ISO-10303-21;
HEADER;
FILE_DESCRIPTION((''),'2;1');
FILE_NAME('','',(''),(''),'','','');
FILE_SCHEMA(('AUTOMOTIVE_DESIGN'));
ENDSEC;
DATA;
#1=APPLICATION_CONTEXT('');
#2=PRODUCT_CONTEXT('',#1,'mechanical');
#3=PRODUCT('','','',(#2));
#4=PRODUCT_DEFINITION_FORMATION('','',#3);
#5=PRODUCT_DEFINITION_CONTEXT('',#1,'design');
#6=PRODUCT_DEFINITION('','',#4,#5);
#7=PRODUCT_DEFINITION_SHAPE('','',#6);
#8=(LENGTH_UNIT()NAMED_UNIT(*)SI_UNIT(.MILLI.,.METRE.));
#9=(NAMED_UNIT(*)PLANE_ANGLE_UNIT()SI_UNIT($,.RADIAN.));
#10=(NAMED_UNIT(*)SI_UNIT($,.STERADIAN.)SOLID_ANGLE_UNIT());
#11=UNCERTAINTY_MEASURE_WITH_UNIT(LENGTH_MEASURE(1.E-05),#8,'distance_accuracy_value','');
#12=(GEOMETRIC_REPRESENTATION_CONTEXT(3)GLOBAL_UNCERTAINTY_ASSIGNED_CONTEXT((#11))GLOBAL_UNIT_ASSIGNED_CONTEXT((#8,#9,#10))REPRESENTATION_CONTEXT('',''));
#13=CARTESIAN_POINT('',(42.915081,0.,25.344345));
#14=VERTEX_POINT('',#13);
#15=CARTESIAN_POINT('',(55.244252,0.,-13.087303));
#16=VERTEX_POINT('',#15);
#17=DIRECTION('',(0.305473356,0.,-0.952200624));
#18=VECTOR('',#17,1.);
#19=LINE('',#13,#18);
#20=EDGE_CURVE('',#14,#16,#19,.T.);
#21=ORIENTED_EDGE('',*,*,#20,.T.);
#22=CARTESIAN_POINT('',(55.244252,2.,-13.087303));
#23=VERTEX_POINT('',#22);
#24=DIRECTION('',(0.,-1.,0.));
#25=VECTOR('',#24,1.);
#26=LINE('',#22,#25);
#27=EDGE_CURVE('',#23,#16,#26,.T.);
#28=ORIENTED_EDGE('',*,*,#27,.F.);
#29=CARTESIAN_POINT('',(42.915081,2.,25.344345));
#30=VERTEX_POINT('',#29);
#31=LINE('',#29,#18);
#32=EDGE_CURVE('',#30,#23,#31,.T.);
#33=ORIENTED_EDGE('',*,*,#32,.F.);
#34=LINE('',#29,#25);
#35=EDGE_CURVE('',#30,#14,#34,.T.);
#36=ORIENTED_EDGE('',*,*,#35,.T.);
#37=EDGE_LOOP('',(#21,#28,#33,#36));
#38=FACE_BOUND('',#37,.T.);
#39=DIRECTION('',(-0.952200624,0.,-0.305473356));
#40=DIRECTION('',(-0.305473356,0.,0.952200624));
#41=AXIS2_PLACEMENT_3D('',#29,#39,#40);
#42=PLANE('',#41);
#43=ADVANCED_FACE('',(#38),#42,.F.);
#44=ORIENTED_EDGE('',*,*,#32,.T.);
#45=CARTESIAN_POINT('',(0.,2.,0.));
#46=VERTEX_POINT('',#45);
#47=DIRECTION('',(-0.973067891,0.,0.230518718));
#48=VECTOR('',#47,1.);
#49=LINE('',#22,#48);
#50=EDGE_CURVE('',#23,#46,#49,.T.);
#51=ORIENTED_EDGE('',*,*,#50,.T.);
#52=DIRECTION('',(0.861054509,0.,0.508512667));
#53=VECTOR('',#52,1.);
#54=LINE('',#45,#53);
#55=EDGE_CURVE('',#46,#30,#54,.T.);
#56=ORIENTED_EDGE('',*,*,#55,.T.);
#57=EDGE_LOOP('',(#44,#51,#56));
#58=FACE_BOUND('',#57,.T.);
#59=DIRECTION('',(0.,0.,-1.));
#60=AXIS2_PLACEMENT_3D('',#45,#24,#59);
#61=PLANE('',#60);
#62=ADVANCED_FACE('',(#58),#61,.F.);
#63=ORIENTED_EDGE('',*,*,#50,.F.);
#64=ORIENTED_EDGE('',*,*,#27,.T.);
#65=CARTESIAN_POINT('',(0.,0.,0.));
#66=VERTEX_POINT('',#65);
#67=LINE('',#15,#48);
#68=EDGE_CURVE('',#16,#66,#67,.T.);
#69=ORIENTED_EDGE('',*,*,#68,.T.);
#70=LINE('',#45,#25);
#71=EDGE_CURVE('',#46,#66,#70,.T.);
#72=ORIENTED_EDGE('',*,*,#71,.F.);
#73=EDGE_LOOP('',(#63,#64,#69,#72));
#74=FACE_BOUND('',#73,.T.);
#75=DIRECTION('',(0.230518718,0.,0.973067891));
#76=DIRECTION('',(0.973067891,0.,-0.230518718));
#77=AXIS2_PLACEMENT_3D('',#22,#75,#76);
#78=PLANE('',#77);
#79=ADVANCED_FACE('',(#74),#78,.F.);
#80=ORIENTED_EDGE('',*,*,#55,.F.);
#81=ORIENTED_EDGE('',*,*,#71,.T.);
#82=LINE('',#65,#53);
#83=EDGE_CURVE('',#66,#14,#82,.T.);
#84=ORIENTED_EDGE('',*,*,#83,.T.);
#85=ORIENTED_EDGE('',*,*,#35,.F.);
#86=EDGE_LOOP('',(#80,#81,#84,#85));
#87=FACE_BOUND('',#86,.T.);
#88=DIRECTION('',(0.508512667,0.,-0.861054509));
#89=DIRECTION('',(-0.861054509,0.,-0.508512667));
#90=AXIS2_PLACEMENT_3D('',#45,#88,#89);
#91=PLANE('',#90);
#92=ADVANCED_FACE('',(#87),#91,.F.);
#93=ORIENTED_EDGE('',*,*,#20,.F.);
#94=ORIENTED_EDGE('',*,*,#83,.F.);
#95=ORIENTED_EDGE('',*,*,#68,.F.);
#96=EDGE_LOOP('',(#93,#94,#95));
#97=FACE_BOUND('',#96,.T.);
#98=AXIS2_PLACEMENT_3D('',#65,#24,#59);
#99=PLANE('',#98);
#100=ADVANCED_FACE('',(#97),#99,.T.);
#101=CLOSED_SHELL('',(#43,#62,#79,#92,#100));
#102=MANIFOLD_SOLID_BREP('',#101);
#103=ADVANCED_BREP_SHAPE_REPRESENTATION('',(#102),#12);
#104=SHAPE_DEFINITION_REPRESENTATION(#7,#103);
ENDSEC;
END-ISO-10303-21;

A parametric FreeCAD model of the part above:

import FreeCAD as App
import Part
import Sketcher

doc = App.newDocument("Part")
params = doc.addObject("Spreadsheet::Sheet", "Params")
for row, (alias, value) in enumerate([
    ("pad1_length", "2 mm"),
], start=1):
    params.set(f"A{row}", alias)
    params.set(f"B{row}", "=" + value)
    params.setAlias(f"B{row}", alias)

body = doc.addObject("PartDesign::Body", "Body")

# Sketch on XZ plane
sketch1 = body.newObject("Sketcher::SketchObject", "Sketch")
sketch1.AttachmentSupport = (doc.getObject("XZ_Plane"), [""])
sketch1.MapMode = "FlatFace"
sketch1.addGeometry(Part.LineSegment(App.Vector(55, -13, 0), App.Vector(0, 0, 0)), False)
sketch1.addGeometry(Part.LineSegment(App.Vector(0, 0, 0), App.Vector(43, 25, 0)), False)
sketch1.addGeometry(Part.LineSegment(App.Vector(43, 25, 0), App.Vector(55, -13, 0)), False)
sketch1.addConstraint(Sketcher.Constraint("Coincident", 0, 2, 1, 1))
sketch1.addConstraint(Sketcher.Constraint("Coincident", 1, 2, 2, 1))
sketch1.addConstraint(Sketcher.Constraint("Coincident", 2, 2, 0, 1))
sketch1.addConstraint(Sketcher.Constraint("Coincident", 0, 2, -1, 1))
sketch1.addConstraint(Sketcher.Constraint("DistanceX", -1, 1, 1, 2, 42.915081))
sketch1.addConstraint(Sketcher.Constraint("DistanceX", 1, 2, 2, 2, 12.329171))
sketch1.addConstraint(Sketcher.Constraint("Distance", 0, 56.773276))
sketch1.addConstraint(Sketcher.Constraint("Distance", 1, 49.840144))
pad1 = body.newObject("PartDesign::Pad", "Pad")
pad1.Profile = sketch1
pad1.setExpression("Length", "Params.pad1_length")
pad1.Reversed = True

doc.recompute()
